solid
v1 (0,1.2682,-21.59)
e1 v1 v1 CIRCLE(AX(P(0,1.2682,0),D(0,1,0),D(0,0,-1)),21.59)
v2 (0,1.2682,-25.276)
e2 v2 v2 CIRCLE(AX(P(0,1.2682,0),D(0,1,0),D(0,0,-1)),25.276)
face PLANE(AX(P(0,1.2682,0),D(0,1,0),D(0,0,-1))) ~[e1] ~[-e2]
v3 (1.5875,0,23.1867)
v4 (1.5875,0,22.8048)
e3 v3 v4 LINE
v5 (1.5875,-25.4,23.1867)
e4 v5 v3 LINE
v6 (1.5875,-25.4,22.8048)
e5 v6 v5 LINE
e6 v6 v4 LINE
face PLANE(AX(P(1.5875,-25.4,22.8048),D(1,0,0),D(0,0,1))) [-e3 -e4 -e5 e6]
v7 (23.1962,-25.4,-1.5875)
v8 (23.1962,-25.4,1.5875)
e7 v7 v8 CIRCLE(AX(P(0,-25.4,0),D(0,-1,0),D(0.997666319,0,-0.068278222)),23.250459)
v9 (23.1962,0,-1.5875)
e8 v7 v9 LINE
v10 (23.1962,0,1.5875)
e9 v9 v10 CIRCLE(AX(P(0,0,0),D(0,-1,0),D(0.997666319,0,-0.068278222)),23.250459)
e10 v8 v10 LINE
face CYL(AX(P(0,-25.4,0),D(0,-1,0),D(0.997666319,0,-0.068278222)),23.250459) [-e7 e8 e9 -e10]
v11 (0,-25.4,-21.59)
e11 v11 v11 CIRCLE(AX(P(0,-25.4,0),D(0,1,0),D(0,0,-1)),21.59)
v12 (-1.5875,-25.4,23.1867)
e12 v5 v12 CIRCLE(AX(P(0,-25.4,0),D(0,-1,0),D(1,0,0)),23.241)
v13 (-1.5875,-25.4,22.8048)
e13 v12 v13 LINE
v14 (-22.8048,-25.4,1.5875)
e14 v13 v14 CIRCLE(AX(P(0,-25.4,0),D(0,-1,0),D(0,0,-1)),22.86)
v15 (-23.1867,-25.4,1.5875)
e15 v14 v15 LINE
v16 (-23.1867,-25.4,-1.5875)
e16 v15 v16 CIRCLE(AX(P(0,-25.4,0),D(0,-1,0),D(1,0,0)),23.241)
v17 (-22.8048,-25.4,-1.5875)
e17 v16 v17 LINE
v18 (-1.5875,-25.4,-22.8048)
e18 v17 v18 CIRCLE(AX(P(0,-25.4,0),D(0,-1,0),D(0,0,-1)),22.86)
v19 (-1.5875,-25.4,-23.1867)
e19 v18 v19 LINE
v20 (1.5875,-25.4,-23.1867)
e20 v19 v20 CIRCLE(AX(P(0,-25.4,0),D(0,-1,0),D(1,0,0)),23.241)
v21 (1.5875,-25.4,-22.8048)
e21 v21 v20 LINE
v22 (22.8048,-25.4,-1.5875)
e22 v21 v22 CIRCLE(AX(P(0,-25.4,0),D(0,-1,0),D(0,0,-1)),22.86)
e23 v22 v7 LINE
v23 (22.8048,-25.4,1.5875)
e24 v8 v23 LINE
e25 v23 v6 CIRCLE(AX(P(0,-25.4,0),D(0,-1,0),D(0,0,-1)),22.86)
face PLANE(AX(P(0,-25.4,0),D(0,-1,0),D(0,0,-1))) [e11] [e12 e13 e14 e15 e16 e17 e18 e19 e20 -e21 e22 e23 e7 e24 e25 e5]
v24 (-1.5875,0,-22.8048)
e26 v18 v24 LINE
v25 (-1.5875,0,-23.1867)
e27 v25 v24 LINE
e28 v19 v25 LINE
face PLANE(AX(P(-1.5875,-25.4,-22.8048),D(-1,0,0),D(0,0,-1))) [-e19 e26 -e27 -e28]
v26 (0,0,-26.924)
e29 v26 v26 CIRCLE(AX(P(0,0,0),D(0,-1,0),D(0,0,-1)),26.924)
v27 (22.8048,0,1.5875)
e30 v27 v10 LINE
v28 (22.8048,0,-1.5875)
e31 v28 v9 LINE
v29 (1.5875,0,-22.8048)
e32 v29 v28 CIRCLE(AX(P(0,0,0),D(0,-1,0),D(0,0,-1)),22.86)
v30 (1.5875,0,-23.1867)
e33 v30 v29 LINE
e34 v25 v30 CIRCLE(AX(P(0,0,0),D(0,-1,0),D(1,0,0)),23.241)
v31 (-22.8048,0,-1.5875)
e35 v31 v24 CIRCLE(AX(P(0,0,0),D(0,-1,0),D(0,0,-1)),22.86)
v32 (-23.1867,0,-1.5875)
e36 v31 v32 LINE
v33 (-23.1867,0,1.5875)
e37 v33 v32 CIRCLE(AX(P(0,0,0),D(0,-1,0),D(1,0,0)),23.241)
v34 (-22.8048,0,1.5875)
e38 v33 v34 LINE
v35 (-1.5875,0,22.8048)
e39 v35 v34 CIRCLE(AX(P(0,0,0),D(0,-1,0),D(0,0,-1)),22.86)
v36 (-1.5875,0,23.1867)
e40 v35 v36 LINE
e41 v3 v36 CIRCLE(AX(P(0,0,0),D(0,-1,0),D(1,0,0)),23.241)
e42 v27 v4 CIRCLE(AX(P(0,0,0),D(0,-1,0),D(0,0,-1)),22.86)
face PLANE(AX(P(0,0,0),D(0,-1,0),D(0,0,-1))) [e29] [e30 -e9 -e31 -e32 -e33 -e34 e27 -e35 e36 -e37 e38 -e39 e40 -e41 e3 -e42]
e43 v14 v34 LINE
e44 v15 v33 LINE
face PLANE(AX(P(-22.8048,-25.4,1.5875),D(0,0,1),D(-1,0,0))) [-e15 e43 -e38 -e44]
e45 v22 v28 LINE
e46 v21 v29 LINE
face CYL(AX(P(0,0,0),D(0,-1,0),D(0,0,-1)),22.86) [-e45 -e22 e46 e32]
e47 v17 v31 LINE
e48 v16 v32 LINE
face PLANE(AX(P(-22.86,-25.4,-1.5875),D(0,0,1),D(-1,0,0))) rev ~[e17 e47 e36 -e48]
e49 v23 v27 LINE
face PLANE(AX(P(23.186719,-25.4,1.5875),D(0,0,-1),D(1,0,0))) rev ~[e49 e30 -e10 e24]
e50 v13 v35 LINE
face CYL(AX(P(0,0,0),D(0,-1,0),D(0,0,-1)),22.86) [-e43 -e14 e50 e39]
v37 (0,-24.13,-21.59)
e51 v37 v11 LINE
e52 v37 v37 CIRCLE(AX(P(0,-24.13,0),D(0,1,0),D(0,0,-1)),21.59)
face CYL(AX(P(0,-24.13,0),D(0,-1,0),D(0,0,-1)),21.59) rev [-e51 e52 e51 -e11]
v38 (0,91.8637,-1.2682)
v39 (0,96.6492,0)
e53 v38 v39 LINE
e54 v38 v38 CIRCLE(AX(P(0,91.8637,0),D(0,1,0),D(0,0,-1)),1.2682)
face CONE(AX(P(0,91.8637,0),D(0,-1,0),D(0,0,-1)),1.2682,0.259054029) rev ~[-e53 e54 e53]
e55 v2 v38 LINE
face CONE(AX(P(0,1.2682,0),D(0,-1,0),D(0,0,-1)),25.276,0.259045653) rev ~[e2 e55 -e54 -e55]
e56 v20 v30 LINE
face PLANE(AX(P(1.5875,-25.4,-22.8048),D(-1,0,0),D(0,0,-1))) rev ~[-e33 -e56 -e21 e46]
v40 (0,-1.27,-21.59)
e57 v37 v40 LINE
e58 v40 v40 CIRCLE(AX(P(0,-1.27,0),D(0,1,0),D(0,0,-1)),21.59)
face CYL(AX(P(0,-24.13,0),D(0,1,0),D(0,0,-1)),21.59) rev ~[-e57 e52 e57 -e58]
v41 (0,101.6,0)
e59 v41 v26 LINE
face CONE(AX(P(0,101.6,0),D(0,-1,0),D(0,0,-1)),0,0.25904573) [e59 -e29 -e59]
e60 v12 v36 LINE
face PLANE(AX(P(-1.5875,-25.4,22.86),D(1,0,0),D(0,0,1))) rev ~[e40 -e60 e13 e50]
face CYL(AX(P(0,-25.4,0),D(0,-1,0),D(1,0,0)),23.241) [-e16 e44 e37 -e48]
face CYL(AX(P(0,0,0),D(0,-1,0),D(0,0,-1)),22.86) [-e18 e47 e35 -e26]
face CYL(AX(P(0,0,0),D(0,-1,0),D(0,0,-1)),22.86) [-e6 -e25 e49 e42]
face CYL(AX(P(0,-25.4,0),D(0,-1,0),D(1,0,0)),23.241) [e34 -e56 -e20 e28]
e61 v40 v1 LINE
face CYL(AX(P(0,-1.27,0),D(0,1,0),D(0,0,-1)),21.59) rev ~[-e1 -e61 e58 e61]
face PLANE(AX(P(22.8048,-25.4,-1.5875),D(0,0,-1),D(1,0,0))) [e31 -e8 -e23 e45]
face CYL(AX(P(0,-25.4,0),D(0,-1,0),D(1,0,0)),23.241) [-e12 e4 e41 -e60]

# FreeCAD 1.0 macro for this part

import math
import FreeCAD as App
import Part
import Sketcher
from FreeCAD import Vector
Q = App.Units.Quantity


def add_polygon(sketch, points):
    """Adds a closed chain of lines whose ends are joined by coincident constraints."""
    first, n = sketch.GeometryCount, len(points)
    for a, b in zip(points, points[1:] + points[:1]):
        sketch.addGeometry(Part.LineSegment(App.Vector(*a, 0), App.Vector(*b, 0)), False)
    for i in range(n):
        sketch.addConstraint(Sketcher.Constraint("Coincident", first + i, 2, first + (i + 1) % n, 1))

doc = App.newDocument("Part")
body = doc.addObject("PartDesign::Body", "Body")

sketch1 = body.newObject("Sketcher::SketchObject", "Sketch")
sketch1.AttachmentSupport = (doc.getObject("YZ_Plane"), [""])
sketch1.MapMode = "FlatFace"
add_polygon(sketch1, [(-25.4, -22.9), (0, -22.9), (0, -26.9), (101.6, 0), (96.6, 0), (91.9, -1.3), (1.3, -25.3), (1.3, -21.6), (-25.4, -21.6)])
sketch1.addConstraint([
    Sketcher.Constraint("Horizontal", 0),
    Sketcher.Constraint("Vertical", 1),
    Sketcher.Constraint("Horizontal", 3),
    Sketcher.Constraint("Vertical", 6),
    Sketcher.Constraint("Horizontal", 7),
    Sketcher.Constraint("Vertical", 8),
    Sketcher.Constraint("PointOnObject", 0, 2, -2),
    Sketcher.Constraint("PointOnObject", 2, 2, -1),
    Sketcher.Constraint("Parallel", 2, 4),
    Sketcher.Constraint("Parallel", 4, 5),
    Sketcher.Constraint("DistanceY", 8, 2, 8, 1, Q("0.05 in")),
    Sketcher.Constraint("DistanceX", 0, 1, 0, 2, Q("1 in")),
    Sketcher.Constraint("DistanceX", -1, 1, 2, 2, Q("4 in")),
    Sketcher.Constraint("DistanceY", 1, 2, 1, 1, Q("0.16 in")),
    Sketcher.Constraint("DistanceY", 0, 2, -1, 1, Q("0.9 in")),
    Sketcher.Constraint("Distance", 4, Q("0.1949 in")),
    Sketcher.Constraint("DistanceX", 3, 2, 3, 1, Q("4.9508 mm")),
    Sketcher.Constraint("DistanceX", 7, 2, 7, 1, Q("26.6682 mm")),
])
revolution = body.newObject("PartDesign::Revolution", "Revolution")
revolution.Profile = sketch1
revolution.ReferenceAxis = (sketch1, ["H_Axis"])
revolution.Angle = 360

sketch2 = body.newObject("Sketcher::SketchObject", "Sketch001")
sketch2.AttachmentSupport = (doc.getObject("YZ_Plane"), [""])
sketch2.MapMode = "FlatFace"
add_polygon(sketch2, [(-25.4, 0), (-25.4, -21.6), (1.3, -21.6), (1.3, -25.3), (91.9, -1.3), (96.6, 0)])
sketch2.addConstraint([
    Sketcher.Constraint("Vertical", 0),
    Sketcher.Constraint("Horizontal", 1),
    Sketcher.Constraint("Vertical", 2),
    Sketcher.Constraint("Horizontal", 5),
    Sketcher.Constraint("PointOnObject", 4, 2, -1),
    Sketcher.Constraint("Parallel", 3, 4),
    Sketcher.Constraint("DistanceX", 0, 2, -1, 1, Q("1 in")),
    Sketcher.Constraint("DistanceY", 0, 2, 0, 1, Q("0.85 in")),
    Sketcher.Constraint("Distance", 4, Q("0.1949 in")),
    Sketcher.Constraint("DistanceX", 1, 1, 1, 2, Q("26.6682 mm")),
    Sketcher.Constraint("DistanceX", 5, 2, 5, 1, Q("122.0492 mm")),
    Sketcher.Constraint("DistanceY", 2, 2, 2, 1, Q("3.686 mm")),
])
revolution2 = body.newObject("PartDesign::Revolution", "Revolution001")
revolution2.Profile = sketch2
revolution2.ReferenceAxis = (sketch2, ["H_Axis"])
revolution2.Angle = 360

sketch3 = body.newObject("Sketcher::SketchObject", "Sketch002")
sketch3.AttachmentSupport = (doc.getObject("XZ_Plane"), [""])
sketch3.MapMode = "FlatFace"
sketch3.AttachmentOffset = App.Placement(Vector(0, 0, 1 * 25.4), App.Rotation())
sketch3.addGeometry([
    Part.ArcOfCircle(Part.Circle(Vector(0, 0, 0), Vector(0, 0, 1), 22.86), math.radians(-3.98), math.radians(3.98)),
    Part.LineSegment(Vector(22.8, -1.59, 0), Vector(23.2, -1.59, 0)),
    Part.ArcOfCircle(Part.Circle(Vector(0, 0, 0), Vector(0, 0, 1), 23.25), math.radians(-3.92), math.radians(3.92)),
    Part.LineSegment(Vector(23.2, 1.59, 0), Vector(22.8, 1.59, 0)),
    Part.LineSegment(Vector(1.59, 22.8, 0), Vector(1.59, 23.19, 0)),
    Part.ArcOfCircle(Part.Circle(Vector(0, 0, 0), Vector(0, 0, 1), 23.24), math.radians(86.08), math.radians(93.92)),
    Part.LineSegment(Vector(-1.59, 23.19, 0), Vector(-1.59, 22.8, 0)),
    Part.ArcOfCircle(Part.Circle(Vector(0, 0, 0), Vector(0, 0, 1), 22.86), math.radians(86.02), math.radians(93.98)),
    Part.ArcOfCircle(Part.Circle(Vector(0, 0, 0), Vector(0, 0, 1), 22.86), math.radians(-93.98), math.radians(-86.02)),
    Part.LineSegment(Vector(-1.59, -22.8, 0), Vector(-1.59, -23.19, 0)),
    Part.ArcOfCircle(Part.Circle(Vector(0, 0, 0), Vector(0, 0, 1), 23.24), math.radians(-93.92), math.radians(-86.08)),
    Part.LineSegment(Vector(1.59, -23.19, 0), Vector(1.59, -22.8, 0)),
    Part.LineSegment(Vector(-22.8, 1.59, 0), Vector(-23.19, 1.59, 0)),
    Part.ArcOfCircle(Part.Circle(Vector(0, 0, 0), Vector(0, 0, 1), 23.24), math.radians(176.08), math.radians(183.92)),
    Part.LineSegment(Vector(-23.19, -1.59, 0), Vector(-22.8, -1.59, 0)),
    Part.ArcOfCircle(Part.Circle(Vector(0, 0, 0), Vector(0, 0, 1), 22.86), math.radians(176.02), math.radians(183.98)),
], False)
sketch3.addConstraint([
    Sketcher.Constraint("Coincident", 0, 1, 1, 1),
    Sketcher.Constraint("Coincident", 1, 2, 2, 1),
    Sketcher.Constraint("Coincident", 2, 2, 3, 1),
    Sketcher.Constraint("Coincident", 3, 2, 0, 2),
    Sketcher.Constraint("Coincident", 4, 2, 5, 1),
    Sketcher.Constraint("Coincident", 5, 2, 6, 1),
    Sketcher.Constraint("Coincident", 6, 2, 7, 2),
    Sketcher.Constraint("Coincident", 7, 1, 4, 1),
    Sketcher.Constraint("Coincident", 8, 1, 9, 1),
    Sketcher.Constraint("Coincident", 9, 2, 10, 1),
    Sketcher.Constraint("Coincident", 10, 2, 11, 1),
    Sketcher.Constraint("Coincident", 11, 2, 8, 2),
    Sketcher.Constraint("Coincident", 12, 2, 13, 1),
    Sketcher.Constraint("Coincident", 13, 2, 14, 1),
    Sketcher.Constraint("Coincident", 14, 2, 15, 2),
    Sketcher.Constraint("Coincident", 15, 1, 12, 1),
    Sketcher.Constraint("Horizontal", 1),
    Sketcher.Constraint("Horizontal", 3),
    Sketcher.Constraint("Vertical", 4),
    Sketcher.Constraint("Vertical", 6),
    Sketcher.Constraint("Vertical", 9),
    Sketcher.Constraint("Vertical", 11),
    Sketcher.Constraint("Horizontal", 12),
    Sketcher.Constraint("Horizontal", 14),
    Sketcher.Constraint("Coincident", 0, 3, -1, 1),
    Sketcher.Constraint("Coincident", 2, 3, -1, 1),
    Sketcher.Constraint("Coincident", 5, 3, -1, 1),
    Sketcher.Constraint("Coincident", 7, 3, -1, 1),
    Sketcher.Constraint("Coincident", 8, 3, -1, 1),
    Sketcher.Constraint("Coincident", 10, 3, -1, 1),
    Sketcher.Constraint("Coincident", 13, 3, -1, 1),
    Sketcher.Constraint("Coincident", 15, 3, -1, 1),
    Sketcher.Constraint("Equal", 0, 7),
    Sketcher.Constraint("Equal", 7, 8),
    Sketcher.Constraint("Equal", 5, 10),
    Sketcher.Constraint("Equal", 10, 13),
    Sketcher.Constraint("Equal", 8, 15),
    Sketcher.Constraint("Horizontal", 4, 2, 5, 2),
    Sketcher.Constraint("Horizontal", 9, 2, 10, 2),
    Sketcher.Constraint("Horizontal", 3, 2, 12, 2),
    Sketcher.Constraint("Horizontal", 1, 2, 13, 2),
    Sketcher.Constraint("Vertical", 1, 2, 2, 2),
    Sketcher.Constraint("Vertical", 6, 2, 8, 1),
    Sketcher.Constraint("Radius", 0, Q("0.9 in")),
    Sketcher.Constraint("DistanceY", 0, 1, -1, 1, Q("0.0625 in")),
    Sketcher.Constraint("DistanceX", -1, 1, 4, 2, Q("0.0625 in")),
    Sketcher.Constraint("Radius", 5, Q("0.915 in")),
    Sketcher.Constraint("Radius", 2, Q("23.2505 mm")),
])
pad1 = body.newObject("PartDesign::Pad", "Pad")
pad1.Profile = sketch3
pad1.Length = Q("1 in")
pad1.Reversed = True

sketch4 = body.newObject("Sketcher::SketchObject", "Sketch003")
sketch4.AttachmentSupport = (doc.getObject("YZ_Plane"), [""])
sketch4.MapMode = "FlatFace"
add_polygon(sketch4, [(-25.4, 0), (-25.4, -21.6), (1.3, -21.6), (1.3, -25.3), (91.9, -1.3), (96.6, 0)])
sketch4.addConstraint([
    Sketcher.Constraint("Vertical", 0),
    Sketcher.Constraint("Horizontal", 1),
    Sketcher.Constraint("Vertical", 2),
    Sketcher.Constraint("Horizontal", 5),
    Sketcher.Constraint("PointOnObject", 4, 2, -1),
    Sketcher.Constraint("Parallel", 3, 4),
    Sketcher.Constraint("DistanceX", 0, 2, -1, 1, Q("1 in")),
    Sketcher.Constraint("DistanceY", 0, 2, 0, 1, Q("0.85 in")),
    Sketcher.Constraint("Distance", 4, Q("0.1949 in")),
    Sketcher.Constraint("DistanceX", 1, 1, 1, 2, Q("26.6682 mm")),
    Sketcher.Constraint("DistanceX", 5, 2, 5, 1, Q("122.0492 mm")),
    Sketcher.Constraint("DistanceY", 2, 2, 2, 1, Q("3.686 mm")),
])
groove = body.newObject("PartDesign::Groove", "Groove")
groove.Profile = sketch4
groove.ReferenceAxis = (sketch4, ["H_Axis"])
groove.Angle = 360

sketch5 = body.newObject("Sketcher::SketchObject", "Sketch004")
sketch5.AttachmentSupport = (doc.getObject("YZ_Plane"), [""])
sketch5.MapMode = "FlatFace"
add_polygon(sketch5, [(-25.4, 0), (-25.4, -21.6), (1.3, -21.6), (1.3, -25.3), (91.9, -1.3), (96.6, 0)])
sketch5.addConstraint([
    Sketcher.Constraint("Vertical", 0),
    Sketcher.Constraint("Horizontal", 1),
    Sketcher.Constraint("Vertical", 2),
    Sketcher.Constraint("Horizontal", 5),
    Sketcher.Constraint("PointOnObject", 4, 2, -1),
    Sketcher.Constraint("Parallel", 3, 4),
    Sketcher.Constraint("DistanceX", 0, 2, -1, 1, Q("1 in")),
    Sketcher.Constraint("DistanceY", 0, 2, 0, 1, Q("0.85 in")),
    Sketcher.Constraint("Distance", 4, Q("0.1949 in")),
    Sketcher.Constraint("DistanceX", 1, 1, 1, 2, Q("26.6682 mm")),
    Sketcher.Constraint("DistanceX", 5, 2, 5, 1, Q("122.0492 mm")),
    Sketcher.Constraint("DistanceY", 2, 2, 2, 1, Q("3.686 mm")),
])
groove2 = body.newObject("PartDesign::Groove", "Groove001")
groove2.Profile = sketch5
groove2.ReferenceAxis = (sketch5, ["H_Axis"])
groove2.Angle = 360

doc.recompute()
